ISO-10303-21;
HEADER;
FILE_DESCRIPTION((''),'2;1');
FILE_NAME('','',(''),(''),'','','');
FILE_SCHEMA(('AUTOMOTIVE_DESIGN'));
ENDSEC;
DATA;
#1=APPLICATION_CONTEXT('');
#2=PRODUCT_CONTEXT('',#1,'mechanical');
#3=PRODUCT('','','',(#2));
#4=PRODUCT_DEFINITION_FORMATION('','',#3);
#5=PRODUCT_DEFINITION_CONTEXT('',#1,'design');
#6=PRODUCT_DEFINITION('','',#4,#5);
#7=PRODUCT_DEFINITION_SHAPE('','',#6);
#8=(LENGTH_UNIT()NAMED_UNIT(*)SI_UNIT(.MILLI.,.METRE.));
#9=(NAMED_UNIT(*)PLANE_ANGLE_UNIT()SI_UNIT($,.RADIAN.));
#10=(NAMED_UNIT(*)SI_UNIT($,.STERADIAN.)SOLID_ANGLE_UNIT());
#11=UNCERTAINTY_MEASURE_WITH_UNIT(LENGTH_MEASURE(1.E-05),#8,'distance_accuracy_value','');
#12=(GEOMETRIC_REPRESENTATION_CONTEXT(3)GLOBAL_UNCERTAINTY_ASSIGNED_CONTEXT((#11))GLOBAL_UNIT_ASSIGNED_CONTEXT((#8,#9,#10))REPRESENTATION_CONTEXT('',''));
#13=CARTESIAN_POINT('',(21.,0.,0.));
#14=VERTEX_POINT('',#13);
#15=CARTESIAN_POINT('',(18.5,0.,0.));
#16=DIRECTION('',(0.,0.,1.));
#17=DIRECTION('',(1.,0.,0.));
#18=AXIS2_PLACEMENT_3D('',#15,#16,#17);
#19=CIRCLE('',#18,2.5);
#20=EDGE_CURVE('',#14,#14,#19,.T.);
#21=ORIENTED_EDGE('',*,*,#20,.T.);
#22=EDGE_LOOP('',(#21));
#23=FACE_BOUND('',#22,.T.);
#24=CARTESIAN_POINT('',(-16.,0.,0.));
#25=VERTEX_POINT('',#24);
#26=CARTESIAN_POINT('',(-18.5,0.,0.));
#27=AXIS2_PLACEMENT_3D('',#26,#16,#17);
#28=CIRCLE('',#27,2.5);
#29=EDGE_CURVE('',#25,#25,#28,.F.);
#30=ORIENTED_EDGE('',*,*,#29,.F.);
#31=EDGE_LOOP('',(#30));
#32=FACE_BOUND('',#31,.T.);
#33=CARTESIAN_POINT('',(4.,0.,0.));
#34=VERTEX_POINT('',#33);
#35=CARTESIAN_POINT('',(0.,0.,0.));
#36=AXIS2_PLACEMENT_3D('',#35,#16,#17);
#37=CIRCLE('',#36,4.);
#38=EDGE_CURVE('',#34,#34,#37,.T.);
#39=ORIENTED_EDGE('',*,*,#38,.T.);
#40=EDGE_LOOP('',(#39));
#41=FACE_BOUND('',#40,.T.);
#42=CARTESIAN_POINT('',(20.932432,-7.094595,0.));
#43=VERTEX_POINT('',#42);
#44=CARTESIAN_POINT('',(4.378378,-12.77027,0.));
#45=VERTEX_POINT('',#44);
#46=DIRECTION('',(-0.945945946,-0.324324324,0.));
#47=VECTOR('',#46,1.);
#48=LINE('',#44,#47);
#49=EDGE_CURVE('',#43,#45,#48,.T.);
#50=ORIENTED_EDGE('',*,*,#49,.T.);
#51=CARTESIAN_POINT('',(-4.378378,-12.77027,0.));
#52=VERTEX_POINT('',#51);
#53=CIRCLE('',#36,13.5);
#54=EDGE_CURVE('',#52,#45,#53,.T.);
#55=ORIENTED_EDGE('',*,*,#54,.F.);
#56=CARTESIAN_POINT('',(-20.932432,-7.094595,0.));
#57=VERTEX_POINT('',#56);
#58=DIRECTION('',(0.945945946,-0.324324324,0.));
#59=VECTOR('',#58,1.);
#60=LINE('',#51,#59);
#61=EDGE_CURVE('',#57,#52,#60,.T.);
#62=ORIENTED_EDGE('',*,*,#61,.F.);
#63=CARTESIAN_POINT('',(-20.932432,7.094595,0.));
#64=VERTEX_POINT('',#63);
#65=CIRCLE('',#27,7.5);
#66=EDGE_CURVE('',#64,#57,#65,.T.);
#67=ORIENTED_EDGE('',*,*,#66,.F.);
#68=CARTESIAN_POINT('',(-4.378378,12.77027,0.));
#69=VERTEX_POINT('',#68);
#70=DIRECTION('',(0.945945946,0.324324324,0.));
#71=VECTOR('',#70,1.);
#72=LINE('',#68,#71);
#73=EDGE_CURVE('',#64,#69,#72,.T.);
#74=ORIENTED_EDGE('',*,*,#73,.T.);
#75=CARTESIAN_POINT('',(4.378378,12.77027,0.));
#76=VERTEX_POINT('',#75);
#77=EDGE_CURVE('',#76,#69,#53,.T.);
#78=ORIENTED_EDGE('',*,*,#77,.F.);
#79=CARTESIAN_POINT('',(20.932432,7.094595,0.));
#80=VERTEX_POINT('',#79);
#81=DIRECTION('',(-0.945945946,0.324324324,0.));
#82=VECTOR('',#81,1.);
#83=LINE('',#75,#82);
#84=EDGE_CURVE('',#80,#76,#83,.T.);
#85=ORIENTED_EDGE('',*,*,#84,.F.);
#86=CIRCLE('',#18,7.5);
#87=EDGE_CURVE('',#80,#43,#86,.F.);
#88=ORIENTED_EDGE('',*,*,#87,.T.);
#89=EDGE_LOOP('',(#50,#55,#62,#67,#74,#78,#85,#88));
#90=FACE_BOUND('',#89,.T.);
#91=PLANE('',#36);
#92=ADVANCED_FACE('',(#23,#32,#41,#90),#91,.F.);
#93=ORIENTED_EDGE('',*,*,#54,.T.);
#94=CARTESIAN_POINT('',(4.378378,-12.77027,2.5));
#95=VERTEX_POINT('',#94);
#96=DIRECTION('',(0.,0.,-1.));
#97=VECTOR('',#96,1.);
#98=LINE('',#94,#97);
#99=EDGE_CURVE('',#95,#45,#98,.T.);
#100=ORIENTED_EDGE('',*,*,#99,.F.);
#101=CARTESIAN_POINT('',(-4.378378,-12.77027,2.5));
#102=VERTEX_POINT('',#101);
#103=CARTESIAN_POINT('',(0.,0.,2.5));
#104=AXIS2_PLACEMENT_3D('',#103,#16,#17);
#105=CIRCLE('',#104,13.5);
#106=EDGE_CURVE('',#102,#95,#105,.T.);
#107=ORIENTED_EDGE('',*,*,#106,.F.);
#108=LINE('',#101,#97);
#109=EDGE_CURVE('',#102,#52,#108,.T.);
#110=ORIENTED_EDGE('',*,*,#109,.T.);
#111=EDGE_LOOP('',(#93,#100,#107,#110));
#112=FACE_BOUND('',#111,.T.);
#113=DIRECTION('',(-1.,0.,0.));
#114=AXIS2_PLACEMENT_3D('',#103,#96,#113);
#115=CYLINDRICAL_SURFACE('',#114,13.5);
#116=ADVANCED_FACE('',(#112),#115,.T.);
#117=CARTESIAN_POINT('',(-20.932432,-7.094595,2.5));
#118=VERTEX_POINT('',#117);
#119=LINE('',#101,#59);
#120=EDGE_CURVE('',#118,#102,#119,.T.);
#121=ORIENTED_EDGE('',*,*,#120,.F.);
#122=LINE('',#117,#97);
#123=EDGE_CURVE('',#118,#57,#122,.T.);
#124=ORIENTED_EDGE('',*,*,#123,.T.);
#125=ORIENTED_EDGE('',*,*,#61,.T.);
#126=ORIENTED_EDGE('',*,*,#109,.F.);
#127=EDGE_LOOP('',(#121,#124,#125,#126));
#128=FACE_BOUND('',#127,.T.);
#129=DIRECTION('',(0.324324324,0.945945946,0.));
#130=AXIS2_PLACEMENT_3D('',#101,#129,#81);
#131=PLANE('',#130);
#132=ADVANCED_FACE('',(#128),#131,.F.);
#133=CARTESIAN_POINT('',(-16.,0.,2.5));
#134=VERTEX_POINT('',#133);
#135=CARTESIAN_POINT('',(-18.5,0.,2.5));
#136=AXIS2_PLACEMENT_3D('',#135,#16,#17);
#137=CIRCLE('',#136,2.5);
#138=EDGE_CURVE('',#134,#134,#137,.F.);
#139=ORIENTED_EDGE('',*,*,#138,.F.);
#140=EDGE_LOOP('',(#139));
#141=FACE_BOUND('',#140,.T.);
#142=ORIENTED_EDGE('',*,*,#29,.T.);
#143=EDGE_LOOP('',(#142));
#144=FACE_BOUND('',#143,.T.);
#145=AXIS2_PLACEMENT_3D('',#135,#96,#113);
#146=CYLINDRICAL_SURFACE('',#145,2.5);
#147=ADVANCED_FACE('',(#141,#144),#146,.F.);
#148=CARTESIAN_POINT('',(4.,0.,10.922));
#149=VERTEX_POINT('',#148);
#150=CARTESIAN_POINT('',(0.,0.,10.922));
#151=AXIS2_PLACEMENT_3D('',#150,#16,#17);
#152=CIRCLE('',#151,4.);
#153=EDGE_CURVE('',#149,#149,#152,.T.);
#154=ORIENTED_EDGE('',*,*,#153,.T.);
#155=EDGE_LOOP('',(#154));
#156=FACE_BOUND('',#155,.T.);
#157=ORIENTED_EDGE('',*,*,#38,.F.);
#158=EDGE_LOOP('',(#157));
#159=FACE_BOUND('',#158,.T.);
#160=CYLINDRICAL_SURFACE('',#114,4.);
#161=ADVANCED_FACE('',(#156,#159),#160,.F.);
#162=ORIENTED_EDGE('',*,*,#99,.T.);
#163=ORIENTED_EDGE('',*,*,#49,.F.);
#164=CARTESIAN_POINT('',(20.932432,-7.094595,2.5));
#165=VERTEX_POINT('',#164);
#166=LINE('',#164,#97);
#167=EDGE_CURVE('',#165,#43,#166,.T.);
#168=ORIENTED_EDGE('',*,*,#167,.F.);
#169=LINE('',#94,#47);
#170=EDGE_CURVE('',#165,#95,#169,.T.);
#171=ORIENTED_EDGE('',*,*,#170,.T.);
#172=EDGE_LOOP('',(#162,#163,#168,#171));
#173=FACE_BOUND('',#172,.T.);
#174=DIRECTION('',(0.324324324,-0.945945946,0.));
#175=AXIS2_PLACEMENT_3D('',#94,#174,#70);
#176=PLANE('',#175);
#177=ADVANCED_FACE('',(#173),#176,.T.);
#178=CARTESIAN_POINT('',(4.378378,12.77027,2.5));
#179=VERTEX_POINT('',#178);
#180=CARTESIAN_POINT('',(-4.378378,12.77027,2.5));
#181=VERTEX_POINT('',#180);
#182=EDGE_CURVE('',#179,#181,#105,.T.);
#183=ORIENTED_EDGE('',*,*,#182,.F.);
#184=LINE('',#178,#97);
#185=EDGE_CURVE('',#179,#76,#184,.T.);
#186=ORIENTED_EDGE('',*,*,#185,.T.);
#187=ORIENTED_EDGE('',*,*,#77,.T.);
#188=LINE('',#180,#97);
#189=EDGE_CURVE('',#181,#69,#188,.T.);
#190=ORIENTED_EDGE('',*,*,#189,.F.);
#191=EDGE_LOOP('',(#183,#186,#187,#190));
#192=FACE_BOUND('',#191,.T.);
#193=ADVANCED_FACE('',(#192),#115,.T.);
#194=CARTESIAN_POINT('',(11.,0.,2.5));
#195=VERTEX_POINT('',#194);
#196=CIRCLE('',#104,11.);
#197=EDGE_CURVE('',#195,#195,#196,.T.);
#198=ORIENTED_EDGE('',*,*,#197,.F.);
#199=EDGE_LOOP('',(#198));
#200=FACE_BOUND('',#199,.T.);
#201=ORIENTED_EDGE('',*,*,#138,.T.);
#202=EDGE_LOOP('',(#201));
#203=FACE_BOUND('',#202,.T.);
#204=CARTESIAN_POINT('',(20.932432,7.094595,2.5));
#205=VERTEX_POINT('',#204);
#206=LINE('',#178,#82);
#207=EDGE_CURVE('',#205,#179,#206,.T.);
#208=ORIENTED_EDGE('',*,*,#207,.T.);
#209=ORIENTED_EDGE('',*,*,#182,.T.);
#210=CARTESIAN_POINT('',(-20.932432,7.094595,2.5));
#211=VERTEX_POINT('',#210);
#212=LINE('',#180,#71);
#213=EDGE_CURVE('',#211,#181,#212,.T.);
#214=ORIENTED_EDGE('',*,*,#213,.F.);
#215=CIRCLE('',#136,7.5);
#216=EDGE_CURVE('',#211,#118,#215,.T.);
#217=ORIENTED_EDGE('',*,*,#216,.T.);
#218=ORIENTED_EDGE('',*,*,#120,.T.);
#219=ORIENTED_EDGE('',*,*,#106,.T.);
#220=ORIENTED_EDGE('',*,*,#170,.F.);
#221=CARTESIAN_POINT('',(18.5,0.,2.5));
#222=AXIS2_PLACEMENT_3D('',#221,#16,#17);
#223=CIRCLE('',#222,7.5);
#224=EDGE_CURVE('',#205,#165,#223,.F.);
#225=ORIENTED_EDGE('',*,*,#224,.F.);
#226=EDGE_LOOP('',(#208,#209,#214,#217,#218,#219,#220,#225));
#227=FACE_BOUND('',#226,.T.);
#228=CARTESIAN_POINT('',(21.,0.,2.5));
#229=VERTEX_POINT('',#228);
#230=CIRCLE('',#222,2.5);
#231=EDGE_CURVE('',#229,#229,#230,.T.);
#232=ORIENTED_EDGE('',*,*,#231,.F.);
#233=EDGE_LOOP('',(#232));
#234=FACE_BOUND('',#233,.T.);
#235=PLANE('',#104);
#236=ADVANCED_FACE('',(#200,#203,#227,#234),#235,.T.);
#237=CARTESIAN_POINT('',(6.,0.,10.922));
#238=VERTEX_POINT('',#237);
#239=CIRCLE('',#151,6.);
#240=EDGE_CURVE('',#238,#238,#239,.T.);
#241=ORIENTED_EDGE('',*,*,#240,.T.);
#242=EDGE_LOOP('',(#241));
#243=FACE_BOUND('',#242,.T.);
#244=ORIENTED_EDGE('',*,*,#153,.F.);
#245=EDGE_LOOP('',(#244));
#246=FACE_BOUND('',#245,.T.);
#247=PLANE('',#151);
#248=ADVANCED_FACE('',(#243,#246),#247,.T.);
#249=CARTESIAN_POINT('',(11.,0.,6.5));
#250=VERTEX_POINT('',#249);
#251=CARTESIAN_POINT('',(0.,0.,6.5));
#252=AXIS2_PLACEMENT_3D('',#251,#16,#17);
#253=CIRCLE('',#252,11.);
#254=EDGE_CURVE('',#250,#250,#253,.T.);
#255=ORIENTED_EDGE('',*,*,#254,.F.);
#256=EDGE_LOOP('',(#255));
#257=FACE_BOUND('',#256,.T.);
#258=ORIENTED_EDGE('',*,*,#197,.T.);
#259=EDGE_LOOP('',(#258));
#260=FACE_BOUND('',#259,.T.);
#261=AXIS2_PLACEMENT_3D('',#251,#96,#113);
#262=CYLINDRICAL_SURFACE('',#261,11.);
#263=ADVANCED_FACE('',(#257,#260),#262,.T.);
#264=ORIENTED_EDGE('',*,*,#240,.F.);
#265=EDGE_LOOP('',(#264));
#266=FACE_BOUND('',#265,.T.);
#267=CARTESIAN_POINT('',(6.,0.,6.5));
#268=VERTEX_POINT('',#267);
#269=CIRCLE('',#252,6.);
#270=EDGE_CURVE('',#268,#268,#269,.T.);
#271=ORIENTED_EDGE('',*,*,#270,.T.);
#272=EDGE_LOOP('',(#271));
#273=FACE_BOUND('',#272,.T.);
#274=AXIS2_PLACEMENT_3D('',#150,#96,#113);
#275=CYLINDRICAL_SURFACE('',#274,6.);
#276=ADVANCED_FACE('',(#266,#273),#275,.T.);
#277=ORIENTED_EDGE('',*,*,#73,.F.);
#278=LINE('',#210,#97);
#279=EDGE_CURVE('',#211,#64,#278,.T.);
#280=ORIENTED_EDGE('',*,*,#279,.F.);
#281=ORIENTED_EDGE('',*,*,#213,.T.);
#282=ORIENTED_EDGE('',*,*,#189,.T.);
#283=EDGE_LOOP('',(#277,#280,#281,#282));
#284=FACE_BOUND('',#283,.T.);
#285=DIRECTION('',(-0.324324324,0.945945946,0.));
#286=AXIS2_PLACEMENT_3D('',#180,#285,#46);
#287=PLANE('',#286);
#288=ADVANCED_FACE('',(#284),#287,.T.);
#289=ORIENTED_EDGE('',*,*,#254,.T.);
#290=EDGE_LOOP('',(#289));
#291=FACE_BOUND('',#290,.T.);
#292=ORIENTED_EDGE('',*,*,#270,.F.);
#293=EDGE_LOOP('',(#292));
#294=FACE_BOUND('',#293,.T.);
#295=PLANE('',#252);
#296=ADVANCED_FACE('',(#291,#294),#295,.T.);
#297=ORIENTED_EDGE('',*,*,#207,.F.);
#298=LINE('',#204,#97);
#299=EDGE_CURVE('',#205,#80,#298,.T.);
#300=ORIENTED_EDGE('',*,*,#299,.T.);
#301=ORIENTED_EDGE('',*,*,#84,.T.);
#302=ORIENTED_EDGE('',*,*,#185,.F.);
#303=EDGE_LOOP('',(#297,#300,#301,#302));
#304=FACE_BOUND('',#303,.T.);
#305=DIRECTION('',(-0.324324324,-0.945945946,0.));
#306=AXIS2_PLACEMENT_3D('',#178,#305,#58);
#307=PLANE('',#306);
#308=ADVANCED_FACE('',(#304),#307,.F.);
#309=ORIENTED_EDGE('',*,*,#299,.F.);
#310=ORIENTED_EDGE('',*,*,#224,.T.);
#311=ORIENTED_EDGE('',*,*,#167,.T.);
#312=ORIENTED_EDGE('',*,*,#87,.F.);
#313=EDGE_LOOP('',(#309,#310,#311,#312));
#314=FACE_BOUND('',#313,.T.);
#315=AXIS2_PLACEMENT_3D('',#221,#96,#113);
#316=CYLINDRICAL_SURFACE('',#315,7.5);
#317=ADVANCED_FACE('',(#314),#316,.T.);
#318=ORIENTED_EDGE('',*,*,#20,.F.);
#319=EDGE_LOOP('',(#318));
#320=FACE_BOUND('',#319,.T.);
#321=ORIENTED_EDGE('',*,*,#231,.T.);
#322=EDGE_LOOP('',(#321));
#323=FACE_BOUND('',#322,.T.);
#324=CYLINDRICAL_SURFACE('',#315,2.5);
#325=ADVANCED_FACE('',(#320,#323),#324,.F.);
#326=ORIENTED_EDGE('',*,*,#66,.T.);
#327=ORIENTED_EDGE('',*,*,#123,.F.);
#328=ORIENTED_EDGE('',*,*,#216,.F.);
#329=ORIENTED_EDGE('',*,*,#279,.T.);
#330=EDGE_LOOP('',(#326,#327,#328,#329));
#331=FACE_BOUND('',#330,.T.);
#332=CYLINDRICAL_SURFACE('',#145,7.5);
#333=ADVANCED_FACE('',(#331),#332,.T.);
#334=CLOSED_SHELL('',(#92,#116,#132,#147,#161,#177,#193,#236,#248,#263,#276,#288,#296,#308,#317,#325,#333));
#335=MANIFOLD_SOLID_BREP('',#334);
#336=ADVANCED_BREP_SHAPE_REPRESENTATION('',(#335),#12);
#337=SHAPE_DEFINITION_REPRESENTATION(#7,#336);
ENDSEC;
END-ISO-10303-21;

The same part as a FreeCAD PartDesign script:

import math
import FreeCAD as App
import Part
import Sketcher
Q = App.Units.Quantity

doc = App.newDocument("Part")
params = doc.addObject("Spreadsheet::Sheet", "Params")
for row, (alias, value) in enumerate([
    ("sketch1_diameter", "5 mm"),
    ("sketch1_diameter2", "8 mm"),
    ("sketch1_radius", "7.5 mm"),
    ("sketch1_radius2", "13.5 mm"),
    ("pad1_length", "2.5 mm"),
    ("sketch2_diameter", "12 mm"),
    ("sketch2_diameter2", "8 mm"),
    ("pad2_length", "10.922 mm"),
    ("sketch3_diameter", "22 mm"),
    ("sketch3_diameter2", "12 mm"),
    ("pad3_length", "4 mm"),
], start=1):
    params.set(f"A{row}", alias)
    params.set(f"B{row}", "=" + value)
    params.setAlias(f"B{row}", alias)

body = doc.addObject("PartDesign::Body", "Body")

# Sketch on XY plane
sketch1 = doc.addObject("Sketcher::SketchObject", "Sketch")
body.addObject(sketch1)
sketch1.AttachmentSupport = (doc.XY_Plane, [""])
sketch1.MapMode = "FlatFace"
sketch1.addGeometry([
    Part.ArcOfCircle(Part.Circle(App.Vector(18.5, 0, 0), App.Vector(0, 0, 1), 7.5), math.radians(-71), math.radians(71)),  # 0
    Part.LineSegment(App.Vector(20.9, 7.1, 0), App.Vector(4.4, 12.8, 0)),  # 1
    Part.ArcOfCircle(Part.Circle(App.Vector(0, 0, 0), App.Vector(0, 0, 1), 13.5), math.radians(71), math.radians(109)),  # 2
    Part.LineSegment(App.Vector(-4.4, 12.8, 0), App.Vector(-20.9, 7.1, 0)),  # 3
    Part.ArcOfCircle(Part.Circle(App.Vector(-18.5, 0, 0), App.Vector(0, 0, 1), 7.5), math.radians(109), math.radians(251)),  # 4
    Part.LineSegment(App.Vector(-20.9, -7.1, 0), App.Vector(-4.4, -12.8, 0)),  # 5
    Part.ArcOfCircle(Part.Circle(App.Vector(0, 0, 0), App.Vector(0, 0, 1), 13.5), math.radians(-109), math.radians(-71)),  # 6
    Part.LineSegment(App.Vector(4.4, -12.8, 0), App.Vector(20.9, -7.1, 0)),  # 7
    Part.Circle(App.Vector(-18.5, 0, 0), App.Vector(0, 0, 1), 2.5),  # 8
    Part.Circle(App.Vector(0, 0, 0), App.Vector(0, 0, 1), 4),  # 9
    Part.Circle(App.Vector(18.5, 0, 0), App.Vector(0, 0, 1), 2.5),  # 10
], False)
sketch1.addConstraint([
    Sketcher.Constraint("Tangent", 0, 2, 1, 1),
    Sketcher.Constraint("Tangent", 1, 2, 2, 1),
    Sketcher.Constraint("Tangent", 2, 2, 3, 1),
    Sketcher.Constraint("Tangent", 3, 2, 4, 1),
    Sketcher.Constraint("Tangent", 4, 2, 5, 1),
    Sketcher.Constraint("Tangent", 5, 2, 6, 1),
    Sketcher.Constraint("Tangent", 6, 2, 7, 1),
    Sketcher.Constraint("Tangent", 7, 2, 0, 1),
    Sketcher.Constraint("Coincident", 2, 3, -1, 1),
    Sketcher.Constraint("Coincident", 6, 3, -1, 1),
    Sketcher.Constraint("Coincident", 9, 3, -1, 1),
    Sketcher.Constraint("Coincident", 8, 3, 4, 3),
    Sketcher.Constraint("Coincident", 10, 3, 0, 3),
    Sketcher.Constraint("Equal", 0, 4),
    Sketcher.Constraint("Equal", 2, 6),
    Sketcher.Constraint("Equal", 8, 10),
    Sketcher.Constraint("Symmetric", 0, 3, 4, 3, -1, 1),
    Sketcher.Constraint("PointOnObject", 0, 3, -1),
    Sketcher.Constraint("Diameter", 8, Q("5 mm")),
    Sketcher.Constraint("Diameter", 9, Q("8 mm")),
    Sketcher.Constraint("Radius", 0, Q("7.5 mm")),
    Sketcher.Constraint("Radius", 2, Q("13.5 mm")),
    Sketcher.Constraint("DistanceX", 4, 3, 0, 3, Q("37 mm")),
])
sketch1.setExpression("Constraints[18]", "Params.sketch1_diameter")
sketch1.setExpression("Constraints[19]", "Params.sketch1_diameter2")
sketch1.setExpression("Constraints[20]", "Params.sketch1_radius")
sketch1.setExpression("Constraints[21]", "Params.sketch1_radius2")
pad1 = doc.addObject("PartDesign::Pad", "Pad")
body.addObject(pad1)
pad1.Profile = sketch1
pad1.setExpression("Length", "Params.pad1_length")

# Sketch on XY plane
sketch2 = doc.addObject("Sketcher::SketchObject", "Sketch001")
body.addObject(sketch2)
sketch2.AttachmentSupport = (doc.XY_Plane, [""])
sketch2.MapMode = "FlatFace"
sketch2.addGeometry([
    Part.Circle(App.Vector(0, 0, 0), App.Vector(0, 0, 1), 6),
    Part.Circle(App.Vector(0, 0, 0), App.Vector(0, 0, 1), 4),
], False)
sketch2.addConstraint([
    Sketcher.Constraint("Coincident", 0, 3, -1, 1),
    Sketcher.Constraint("Coincident", 1, 3, -1, 1),
    Sketcher.Constraint("Diameter", 0, Q("12 mm")),
    Sketcher.Constraint("Diameter", 1, Q("8 mm")),
])
sketch2.setExpression("Constraints[2]", "Params.sketch2_diameter")
sketch2.setExpression("Constraints[3]", "Params.sketch2_diameter2")
pad2 = doc.addObject("PartDesign::Pad", "Pad001")
body.addObject(pad2)
pad2.Profile = sketch2
pad2.setExpression("Length", "Params.pad2_length")

# Sketch on XY plane
sketch3 = doc.addObject("Sketcher::SketchObject", "Sketch002")
body.addObject(sketch3)
sketch3.AttachmentSupport = (doc.XY_Plane, [""])
sketch3.MapMode = "FlatFace"
sketch3.AttachmentOffset = App.Placement(App.Vector(0, 0, 2.5), App.Rotation())
sketch3.addGeometry([
    Part.Circle(App.Vector(0, 0, 0), App.Vector(0, 0, 1), 11),
    Part.Circle(App.Vector(0, 0, 0), App.Vector(0, 0, 1), 6),
], False)
sketch3.addConstraint([
    Sketcher.Constraint("Coincident", 0, 3, -1, 1),
    Sketcher.Constraint("Coincident", 1, 3, -1, 1),
    Sketcher.Constraint("Diameter", 0, Q("22 mm")),
    Sketcher.Constraint("Diameter", 1, Q("12 mm")),
])
sketch3.setExpression("Constraints[2]", "Params.sketch3_diameter")
sketch3.setExpression("Constraints[3]", "Params.sketch3_diameter2")
pad3 = doc.addObject("PartDesign::Pad", "Pad002")
body.addObject(pad3)
pad3.Profile = sketch3
pad3.setExpression("Length", "Params.pad3_length")

doc.recompute()
